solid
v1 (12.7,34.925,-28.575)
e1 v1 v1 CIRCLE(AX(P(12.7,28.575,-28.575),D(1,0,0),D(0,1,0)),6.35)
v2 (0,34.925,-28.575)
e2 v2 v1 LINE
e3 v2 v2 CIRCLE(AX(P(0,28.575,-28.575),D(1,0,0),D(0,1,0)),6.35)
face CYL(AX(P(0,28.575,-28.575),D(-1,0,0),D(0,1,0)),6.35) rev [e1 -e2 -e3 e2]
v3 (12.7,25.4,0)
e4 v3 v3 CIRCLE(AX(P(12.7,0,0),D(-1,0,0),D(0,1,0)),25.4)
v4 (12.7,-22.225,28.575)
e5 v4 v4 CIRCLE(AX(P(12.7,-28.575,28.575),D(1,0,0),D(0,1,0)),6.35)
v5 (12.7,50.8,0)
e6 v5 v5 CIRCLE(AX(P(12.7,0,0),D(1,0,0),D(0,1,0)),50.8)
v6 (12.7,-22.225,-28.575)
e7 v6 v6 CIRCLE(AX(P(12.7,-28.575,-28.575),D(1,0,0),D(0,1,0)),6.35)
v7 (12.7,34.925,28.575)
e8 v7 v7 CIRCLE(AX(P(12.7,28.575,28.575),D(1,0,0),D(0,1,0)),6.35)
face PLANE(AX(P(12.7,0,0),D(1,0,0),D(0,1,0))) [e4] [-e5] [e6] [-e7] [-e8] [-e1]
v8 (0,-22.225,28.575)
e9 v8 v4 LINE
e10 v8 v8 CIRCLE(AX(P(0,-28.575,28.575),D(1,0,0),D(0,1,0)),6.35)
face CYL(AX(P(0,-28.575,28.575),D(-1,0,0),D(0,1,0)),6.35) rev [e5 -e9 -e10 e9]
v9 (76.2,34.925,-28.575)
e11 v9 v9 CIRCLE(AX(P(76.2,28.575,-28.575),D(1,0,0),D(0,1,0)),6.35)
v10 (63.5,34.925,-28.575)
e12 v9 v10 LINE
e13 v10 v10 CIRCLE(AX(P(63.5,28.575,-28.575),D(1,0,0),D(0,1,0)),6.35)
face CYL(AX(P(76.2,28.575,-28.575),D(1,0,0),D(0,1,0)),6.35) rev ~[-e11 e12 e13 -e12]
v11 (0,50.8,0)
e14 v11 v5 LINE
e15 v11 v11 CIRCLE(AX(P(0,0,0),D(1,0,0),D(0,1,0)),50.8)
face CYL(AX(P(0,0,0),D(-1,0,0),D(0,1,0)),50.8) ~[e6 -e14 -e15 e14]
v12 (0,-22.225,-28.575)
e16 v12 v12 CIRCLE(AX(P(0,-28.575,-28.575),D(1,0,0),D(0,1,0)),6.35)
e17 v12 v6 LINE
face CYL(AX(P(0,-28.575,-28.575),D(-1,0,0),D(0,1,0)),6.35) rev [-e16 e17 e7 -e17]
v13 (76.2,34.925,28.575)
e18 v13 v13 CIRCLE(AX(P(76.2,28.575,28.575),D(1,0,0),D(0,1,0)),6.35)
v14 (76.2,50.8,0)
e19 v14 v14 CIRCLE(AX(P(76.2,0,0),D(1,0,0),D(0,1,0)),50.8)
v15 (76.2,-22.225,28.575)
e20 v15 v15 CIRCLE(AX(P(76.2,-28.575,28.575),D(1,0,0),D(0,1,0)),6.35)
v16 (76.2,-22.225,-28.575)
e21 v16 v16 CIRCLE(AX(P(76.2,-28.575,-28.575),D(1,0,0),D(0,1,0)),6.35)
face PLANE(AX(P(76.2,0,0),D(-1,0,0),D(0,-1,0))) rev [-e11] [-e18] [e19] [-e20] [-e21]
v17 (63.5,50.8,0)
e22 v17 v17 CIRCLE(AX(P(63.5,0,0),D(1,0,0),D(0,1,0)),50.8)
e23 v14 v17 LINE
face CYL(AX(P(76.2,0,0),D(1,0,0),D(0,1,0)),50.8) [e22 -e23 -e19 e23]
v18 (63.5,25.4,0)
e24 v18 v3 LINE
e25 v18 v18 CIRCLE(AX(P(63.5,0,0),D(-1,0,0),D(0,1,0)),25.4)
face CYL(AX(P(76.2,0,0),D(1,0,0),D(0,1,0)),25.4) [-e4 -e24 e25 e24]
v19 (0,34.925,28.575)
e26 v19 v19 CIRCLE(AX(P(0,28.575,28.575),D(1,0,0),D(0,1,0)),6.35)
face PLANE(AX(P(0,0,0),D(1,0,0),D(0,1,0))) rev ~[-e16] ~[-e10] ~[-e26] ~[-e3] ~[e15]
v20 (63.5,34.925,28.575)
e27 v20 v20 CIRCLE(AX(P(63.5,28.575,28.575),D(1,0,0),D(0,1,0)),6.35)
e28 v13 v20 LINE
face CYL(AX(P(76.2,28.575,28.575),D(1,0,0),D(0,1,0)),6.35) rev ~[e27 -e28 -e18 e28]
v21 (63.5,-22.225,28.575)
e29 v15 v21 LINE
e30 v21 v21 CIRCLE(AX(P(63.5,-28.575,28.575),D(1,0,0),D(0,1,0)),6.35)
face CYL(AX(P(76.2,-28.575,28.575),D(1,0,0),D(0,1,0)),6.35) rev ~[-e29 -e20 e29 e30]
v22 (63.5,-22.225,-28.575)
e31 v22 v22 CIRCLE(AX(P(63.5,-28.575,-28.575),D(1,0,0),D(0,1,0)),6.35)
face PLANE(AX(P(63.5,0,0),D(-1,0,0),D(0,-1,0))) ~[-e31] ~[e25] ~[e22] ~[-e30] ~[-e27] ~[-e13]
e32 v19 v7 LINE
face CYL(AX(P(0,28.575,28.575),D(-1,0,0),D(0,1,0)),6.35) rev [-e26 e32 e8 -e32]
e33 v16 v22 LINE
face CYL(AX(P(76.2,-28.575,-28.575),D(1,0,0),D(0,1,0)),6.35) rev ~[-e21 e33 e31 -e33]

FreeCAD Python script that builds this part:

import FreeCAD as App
import Part
import Sketcher
Q = App.Units.Quantity

doc = App.newDocument("Part")
body = doc.addObject("PartDesign::Body", "Body")

# Sketch on YZ plane
sketch1 = doc.addObject("Sketcher::SketchObject", "Sketch")
body.addObject(sketch1)
sketch1.AttachmentSupport = (doc.YZ_Plane, [""])
sketch1.MapMode = "FlatFace"
sketch1.addGeometry([
    Part.Circle(App.Vector(0, 0, 0), App.Vector(0, 0, 1), 50.8),  # 0
    Part.Circle(App.Vector(-28.575, -28.575, 0), App.Vector(0, 0, 1), 6.35),  # 1
    Part.Circle(App.Vector(28.575, -28.575, 0), App.Vector(0, 0, 1), 6.35),  # 2
    Part.Circle(App.Vector(-28.575, 28.575, 0), App.Vector(0, 0, 1), 6.35),  # 3
    Part.Circle(App.Vector(0, 0, 0), App.Vector(0, 0, 1), 19.05),  # 4
    Part.Circle(App.Vector(28.575, 28.575, 0), App.Vector(0, 0, 1), 6.35),  # 5
], False)
sketch1.addConstraint([
    Sketcher.Constraint("Coincident", 0, 3, -1, 1),
    Sketcher.Constraint("Coincident", 4, 3, -1, 1),
    Sketcher.Constraint("Equal", 1, 2),
    Sketcher.Constraint("Equal", 2, 3),
    Sketcher.Constraint("Equal", 3, 5),
    Sketcher.Constraint("Symmetric", 2, 3, 3, 3, -1, 1),
    Sketcher.Constraint("Symmetric", 1, 3, 5, 3, -1, 1),
    Sketcher.Constraint("Symmetric", 1, 3, 2, 3, -2),
    Sketcher.Constraint("Diameter", 0, Q("4 in")),
    Sketcher.Constraint("Diameter", 1, Q("0.5 in")),
    Sketcher.Constraint("Diameter", 4, Q("1.5 in")),
    Sketcher.Constraint("DistanceX", 1, 3, 2, 3, Q("2.25 in")),
    Sketcher.Constraint("DistanceY", 1, 3, 3, 3, Q("2.25 in")),
])
pad1 = doc.addObject("PartDesign::Pad", "Pad")
body.addObject(pad1)
pad1.Profile = sketch1
pad1.Length = Q("0.5 in")

# Sketch on YZ plane
sketch2 = doc.addObject("Sketcher::SketchObject", "Sketch001")
body.addObject(sketch2)
sketch2.AttachmentSupport = (doc.YZ_Plane, [""])
sketch2.MapMode = "FlatFace"
sketch2.addGeometry(Part.Circle(App.Vector(0, 0, 0), App.Vector(0, 0, 1), 25.4), False)
sketch2.addConstraint([
    Sketcher.Constraint("Coincident", 0, 3, -1, 1),
    Sketcher.Constraint("Diameter", 0, Q("2 in")),
])
pad2 = doc.addObject("PartDesign::Pad", "Pad001")
body.addObject(pad2)
pad2.Profile = sketch2
pad2.Length = Q("1.5 in")
body2 = doc.addObject("PartDesign::Body", "Body001")
doc.recompute()

body2.BaseFeature = body
doc.recompute()

mirroring = doc.addObject("Part::Mirroring", "Mirroring")
mirroring.Source = body
mirroring.Base = App.Vector(38.1, 0, 0)
mirroring.Normal = App.Vector(1, 0, 0)
body3 = doc.addObject("PartDesign::Body", "Body002")
body3.BaseFeature = mirroring
boolean = doc.addObject("PartDesign::Boolean", "Boolean")
body2.addObject(boolean)
boolean.Type = "Fuse"
boolean.addObjects([body3])
doc.recompute()
mirroring.Visibility = False

doc.recompute()
